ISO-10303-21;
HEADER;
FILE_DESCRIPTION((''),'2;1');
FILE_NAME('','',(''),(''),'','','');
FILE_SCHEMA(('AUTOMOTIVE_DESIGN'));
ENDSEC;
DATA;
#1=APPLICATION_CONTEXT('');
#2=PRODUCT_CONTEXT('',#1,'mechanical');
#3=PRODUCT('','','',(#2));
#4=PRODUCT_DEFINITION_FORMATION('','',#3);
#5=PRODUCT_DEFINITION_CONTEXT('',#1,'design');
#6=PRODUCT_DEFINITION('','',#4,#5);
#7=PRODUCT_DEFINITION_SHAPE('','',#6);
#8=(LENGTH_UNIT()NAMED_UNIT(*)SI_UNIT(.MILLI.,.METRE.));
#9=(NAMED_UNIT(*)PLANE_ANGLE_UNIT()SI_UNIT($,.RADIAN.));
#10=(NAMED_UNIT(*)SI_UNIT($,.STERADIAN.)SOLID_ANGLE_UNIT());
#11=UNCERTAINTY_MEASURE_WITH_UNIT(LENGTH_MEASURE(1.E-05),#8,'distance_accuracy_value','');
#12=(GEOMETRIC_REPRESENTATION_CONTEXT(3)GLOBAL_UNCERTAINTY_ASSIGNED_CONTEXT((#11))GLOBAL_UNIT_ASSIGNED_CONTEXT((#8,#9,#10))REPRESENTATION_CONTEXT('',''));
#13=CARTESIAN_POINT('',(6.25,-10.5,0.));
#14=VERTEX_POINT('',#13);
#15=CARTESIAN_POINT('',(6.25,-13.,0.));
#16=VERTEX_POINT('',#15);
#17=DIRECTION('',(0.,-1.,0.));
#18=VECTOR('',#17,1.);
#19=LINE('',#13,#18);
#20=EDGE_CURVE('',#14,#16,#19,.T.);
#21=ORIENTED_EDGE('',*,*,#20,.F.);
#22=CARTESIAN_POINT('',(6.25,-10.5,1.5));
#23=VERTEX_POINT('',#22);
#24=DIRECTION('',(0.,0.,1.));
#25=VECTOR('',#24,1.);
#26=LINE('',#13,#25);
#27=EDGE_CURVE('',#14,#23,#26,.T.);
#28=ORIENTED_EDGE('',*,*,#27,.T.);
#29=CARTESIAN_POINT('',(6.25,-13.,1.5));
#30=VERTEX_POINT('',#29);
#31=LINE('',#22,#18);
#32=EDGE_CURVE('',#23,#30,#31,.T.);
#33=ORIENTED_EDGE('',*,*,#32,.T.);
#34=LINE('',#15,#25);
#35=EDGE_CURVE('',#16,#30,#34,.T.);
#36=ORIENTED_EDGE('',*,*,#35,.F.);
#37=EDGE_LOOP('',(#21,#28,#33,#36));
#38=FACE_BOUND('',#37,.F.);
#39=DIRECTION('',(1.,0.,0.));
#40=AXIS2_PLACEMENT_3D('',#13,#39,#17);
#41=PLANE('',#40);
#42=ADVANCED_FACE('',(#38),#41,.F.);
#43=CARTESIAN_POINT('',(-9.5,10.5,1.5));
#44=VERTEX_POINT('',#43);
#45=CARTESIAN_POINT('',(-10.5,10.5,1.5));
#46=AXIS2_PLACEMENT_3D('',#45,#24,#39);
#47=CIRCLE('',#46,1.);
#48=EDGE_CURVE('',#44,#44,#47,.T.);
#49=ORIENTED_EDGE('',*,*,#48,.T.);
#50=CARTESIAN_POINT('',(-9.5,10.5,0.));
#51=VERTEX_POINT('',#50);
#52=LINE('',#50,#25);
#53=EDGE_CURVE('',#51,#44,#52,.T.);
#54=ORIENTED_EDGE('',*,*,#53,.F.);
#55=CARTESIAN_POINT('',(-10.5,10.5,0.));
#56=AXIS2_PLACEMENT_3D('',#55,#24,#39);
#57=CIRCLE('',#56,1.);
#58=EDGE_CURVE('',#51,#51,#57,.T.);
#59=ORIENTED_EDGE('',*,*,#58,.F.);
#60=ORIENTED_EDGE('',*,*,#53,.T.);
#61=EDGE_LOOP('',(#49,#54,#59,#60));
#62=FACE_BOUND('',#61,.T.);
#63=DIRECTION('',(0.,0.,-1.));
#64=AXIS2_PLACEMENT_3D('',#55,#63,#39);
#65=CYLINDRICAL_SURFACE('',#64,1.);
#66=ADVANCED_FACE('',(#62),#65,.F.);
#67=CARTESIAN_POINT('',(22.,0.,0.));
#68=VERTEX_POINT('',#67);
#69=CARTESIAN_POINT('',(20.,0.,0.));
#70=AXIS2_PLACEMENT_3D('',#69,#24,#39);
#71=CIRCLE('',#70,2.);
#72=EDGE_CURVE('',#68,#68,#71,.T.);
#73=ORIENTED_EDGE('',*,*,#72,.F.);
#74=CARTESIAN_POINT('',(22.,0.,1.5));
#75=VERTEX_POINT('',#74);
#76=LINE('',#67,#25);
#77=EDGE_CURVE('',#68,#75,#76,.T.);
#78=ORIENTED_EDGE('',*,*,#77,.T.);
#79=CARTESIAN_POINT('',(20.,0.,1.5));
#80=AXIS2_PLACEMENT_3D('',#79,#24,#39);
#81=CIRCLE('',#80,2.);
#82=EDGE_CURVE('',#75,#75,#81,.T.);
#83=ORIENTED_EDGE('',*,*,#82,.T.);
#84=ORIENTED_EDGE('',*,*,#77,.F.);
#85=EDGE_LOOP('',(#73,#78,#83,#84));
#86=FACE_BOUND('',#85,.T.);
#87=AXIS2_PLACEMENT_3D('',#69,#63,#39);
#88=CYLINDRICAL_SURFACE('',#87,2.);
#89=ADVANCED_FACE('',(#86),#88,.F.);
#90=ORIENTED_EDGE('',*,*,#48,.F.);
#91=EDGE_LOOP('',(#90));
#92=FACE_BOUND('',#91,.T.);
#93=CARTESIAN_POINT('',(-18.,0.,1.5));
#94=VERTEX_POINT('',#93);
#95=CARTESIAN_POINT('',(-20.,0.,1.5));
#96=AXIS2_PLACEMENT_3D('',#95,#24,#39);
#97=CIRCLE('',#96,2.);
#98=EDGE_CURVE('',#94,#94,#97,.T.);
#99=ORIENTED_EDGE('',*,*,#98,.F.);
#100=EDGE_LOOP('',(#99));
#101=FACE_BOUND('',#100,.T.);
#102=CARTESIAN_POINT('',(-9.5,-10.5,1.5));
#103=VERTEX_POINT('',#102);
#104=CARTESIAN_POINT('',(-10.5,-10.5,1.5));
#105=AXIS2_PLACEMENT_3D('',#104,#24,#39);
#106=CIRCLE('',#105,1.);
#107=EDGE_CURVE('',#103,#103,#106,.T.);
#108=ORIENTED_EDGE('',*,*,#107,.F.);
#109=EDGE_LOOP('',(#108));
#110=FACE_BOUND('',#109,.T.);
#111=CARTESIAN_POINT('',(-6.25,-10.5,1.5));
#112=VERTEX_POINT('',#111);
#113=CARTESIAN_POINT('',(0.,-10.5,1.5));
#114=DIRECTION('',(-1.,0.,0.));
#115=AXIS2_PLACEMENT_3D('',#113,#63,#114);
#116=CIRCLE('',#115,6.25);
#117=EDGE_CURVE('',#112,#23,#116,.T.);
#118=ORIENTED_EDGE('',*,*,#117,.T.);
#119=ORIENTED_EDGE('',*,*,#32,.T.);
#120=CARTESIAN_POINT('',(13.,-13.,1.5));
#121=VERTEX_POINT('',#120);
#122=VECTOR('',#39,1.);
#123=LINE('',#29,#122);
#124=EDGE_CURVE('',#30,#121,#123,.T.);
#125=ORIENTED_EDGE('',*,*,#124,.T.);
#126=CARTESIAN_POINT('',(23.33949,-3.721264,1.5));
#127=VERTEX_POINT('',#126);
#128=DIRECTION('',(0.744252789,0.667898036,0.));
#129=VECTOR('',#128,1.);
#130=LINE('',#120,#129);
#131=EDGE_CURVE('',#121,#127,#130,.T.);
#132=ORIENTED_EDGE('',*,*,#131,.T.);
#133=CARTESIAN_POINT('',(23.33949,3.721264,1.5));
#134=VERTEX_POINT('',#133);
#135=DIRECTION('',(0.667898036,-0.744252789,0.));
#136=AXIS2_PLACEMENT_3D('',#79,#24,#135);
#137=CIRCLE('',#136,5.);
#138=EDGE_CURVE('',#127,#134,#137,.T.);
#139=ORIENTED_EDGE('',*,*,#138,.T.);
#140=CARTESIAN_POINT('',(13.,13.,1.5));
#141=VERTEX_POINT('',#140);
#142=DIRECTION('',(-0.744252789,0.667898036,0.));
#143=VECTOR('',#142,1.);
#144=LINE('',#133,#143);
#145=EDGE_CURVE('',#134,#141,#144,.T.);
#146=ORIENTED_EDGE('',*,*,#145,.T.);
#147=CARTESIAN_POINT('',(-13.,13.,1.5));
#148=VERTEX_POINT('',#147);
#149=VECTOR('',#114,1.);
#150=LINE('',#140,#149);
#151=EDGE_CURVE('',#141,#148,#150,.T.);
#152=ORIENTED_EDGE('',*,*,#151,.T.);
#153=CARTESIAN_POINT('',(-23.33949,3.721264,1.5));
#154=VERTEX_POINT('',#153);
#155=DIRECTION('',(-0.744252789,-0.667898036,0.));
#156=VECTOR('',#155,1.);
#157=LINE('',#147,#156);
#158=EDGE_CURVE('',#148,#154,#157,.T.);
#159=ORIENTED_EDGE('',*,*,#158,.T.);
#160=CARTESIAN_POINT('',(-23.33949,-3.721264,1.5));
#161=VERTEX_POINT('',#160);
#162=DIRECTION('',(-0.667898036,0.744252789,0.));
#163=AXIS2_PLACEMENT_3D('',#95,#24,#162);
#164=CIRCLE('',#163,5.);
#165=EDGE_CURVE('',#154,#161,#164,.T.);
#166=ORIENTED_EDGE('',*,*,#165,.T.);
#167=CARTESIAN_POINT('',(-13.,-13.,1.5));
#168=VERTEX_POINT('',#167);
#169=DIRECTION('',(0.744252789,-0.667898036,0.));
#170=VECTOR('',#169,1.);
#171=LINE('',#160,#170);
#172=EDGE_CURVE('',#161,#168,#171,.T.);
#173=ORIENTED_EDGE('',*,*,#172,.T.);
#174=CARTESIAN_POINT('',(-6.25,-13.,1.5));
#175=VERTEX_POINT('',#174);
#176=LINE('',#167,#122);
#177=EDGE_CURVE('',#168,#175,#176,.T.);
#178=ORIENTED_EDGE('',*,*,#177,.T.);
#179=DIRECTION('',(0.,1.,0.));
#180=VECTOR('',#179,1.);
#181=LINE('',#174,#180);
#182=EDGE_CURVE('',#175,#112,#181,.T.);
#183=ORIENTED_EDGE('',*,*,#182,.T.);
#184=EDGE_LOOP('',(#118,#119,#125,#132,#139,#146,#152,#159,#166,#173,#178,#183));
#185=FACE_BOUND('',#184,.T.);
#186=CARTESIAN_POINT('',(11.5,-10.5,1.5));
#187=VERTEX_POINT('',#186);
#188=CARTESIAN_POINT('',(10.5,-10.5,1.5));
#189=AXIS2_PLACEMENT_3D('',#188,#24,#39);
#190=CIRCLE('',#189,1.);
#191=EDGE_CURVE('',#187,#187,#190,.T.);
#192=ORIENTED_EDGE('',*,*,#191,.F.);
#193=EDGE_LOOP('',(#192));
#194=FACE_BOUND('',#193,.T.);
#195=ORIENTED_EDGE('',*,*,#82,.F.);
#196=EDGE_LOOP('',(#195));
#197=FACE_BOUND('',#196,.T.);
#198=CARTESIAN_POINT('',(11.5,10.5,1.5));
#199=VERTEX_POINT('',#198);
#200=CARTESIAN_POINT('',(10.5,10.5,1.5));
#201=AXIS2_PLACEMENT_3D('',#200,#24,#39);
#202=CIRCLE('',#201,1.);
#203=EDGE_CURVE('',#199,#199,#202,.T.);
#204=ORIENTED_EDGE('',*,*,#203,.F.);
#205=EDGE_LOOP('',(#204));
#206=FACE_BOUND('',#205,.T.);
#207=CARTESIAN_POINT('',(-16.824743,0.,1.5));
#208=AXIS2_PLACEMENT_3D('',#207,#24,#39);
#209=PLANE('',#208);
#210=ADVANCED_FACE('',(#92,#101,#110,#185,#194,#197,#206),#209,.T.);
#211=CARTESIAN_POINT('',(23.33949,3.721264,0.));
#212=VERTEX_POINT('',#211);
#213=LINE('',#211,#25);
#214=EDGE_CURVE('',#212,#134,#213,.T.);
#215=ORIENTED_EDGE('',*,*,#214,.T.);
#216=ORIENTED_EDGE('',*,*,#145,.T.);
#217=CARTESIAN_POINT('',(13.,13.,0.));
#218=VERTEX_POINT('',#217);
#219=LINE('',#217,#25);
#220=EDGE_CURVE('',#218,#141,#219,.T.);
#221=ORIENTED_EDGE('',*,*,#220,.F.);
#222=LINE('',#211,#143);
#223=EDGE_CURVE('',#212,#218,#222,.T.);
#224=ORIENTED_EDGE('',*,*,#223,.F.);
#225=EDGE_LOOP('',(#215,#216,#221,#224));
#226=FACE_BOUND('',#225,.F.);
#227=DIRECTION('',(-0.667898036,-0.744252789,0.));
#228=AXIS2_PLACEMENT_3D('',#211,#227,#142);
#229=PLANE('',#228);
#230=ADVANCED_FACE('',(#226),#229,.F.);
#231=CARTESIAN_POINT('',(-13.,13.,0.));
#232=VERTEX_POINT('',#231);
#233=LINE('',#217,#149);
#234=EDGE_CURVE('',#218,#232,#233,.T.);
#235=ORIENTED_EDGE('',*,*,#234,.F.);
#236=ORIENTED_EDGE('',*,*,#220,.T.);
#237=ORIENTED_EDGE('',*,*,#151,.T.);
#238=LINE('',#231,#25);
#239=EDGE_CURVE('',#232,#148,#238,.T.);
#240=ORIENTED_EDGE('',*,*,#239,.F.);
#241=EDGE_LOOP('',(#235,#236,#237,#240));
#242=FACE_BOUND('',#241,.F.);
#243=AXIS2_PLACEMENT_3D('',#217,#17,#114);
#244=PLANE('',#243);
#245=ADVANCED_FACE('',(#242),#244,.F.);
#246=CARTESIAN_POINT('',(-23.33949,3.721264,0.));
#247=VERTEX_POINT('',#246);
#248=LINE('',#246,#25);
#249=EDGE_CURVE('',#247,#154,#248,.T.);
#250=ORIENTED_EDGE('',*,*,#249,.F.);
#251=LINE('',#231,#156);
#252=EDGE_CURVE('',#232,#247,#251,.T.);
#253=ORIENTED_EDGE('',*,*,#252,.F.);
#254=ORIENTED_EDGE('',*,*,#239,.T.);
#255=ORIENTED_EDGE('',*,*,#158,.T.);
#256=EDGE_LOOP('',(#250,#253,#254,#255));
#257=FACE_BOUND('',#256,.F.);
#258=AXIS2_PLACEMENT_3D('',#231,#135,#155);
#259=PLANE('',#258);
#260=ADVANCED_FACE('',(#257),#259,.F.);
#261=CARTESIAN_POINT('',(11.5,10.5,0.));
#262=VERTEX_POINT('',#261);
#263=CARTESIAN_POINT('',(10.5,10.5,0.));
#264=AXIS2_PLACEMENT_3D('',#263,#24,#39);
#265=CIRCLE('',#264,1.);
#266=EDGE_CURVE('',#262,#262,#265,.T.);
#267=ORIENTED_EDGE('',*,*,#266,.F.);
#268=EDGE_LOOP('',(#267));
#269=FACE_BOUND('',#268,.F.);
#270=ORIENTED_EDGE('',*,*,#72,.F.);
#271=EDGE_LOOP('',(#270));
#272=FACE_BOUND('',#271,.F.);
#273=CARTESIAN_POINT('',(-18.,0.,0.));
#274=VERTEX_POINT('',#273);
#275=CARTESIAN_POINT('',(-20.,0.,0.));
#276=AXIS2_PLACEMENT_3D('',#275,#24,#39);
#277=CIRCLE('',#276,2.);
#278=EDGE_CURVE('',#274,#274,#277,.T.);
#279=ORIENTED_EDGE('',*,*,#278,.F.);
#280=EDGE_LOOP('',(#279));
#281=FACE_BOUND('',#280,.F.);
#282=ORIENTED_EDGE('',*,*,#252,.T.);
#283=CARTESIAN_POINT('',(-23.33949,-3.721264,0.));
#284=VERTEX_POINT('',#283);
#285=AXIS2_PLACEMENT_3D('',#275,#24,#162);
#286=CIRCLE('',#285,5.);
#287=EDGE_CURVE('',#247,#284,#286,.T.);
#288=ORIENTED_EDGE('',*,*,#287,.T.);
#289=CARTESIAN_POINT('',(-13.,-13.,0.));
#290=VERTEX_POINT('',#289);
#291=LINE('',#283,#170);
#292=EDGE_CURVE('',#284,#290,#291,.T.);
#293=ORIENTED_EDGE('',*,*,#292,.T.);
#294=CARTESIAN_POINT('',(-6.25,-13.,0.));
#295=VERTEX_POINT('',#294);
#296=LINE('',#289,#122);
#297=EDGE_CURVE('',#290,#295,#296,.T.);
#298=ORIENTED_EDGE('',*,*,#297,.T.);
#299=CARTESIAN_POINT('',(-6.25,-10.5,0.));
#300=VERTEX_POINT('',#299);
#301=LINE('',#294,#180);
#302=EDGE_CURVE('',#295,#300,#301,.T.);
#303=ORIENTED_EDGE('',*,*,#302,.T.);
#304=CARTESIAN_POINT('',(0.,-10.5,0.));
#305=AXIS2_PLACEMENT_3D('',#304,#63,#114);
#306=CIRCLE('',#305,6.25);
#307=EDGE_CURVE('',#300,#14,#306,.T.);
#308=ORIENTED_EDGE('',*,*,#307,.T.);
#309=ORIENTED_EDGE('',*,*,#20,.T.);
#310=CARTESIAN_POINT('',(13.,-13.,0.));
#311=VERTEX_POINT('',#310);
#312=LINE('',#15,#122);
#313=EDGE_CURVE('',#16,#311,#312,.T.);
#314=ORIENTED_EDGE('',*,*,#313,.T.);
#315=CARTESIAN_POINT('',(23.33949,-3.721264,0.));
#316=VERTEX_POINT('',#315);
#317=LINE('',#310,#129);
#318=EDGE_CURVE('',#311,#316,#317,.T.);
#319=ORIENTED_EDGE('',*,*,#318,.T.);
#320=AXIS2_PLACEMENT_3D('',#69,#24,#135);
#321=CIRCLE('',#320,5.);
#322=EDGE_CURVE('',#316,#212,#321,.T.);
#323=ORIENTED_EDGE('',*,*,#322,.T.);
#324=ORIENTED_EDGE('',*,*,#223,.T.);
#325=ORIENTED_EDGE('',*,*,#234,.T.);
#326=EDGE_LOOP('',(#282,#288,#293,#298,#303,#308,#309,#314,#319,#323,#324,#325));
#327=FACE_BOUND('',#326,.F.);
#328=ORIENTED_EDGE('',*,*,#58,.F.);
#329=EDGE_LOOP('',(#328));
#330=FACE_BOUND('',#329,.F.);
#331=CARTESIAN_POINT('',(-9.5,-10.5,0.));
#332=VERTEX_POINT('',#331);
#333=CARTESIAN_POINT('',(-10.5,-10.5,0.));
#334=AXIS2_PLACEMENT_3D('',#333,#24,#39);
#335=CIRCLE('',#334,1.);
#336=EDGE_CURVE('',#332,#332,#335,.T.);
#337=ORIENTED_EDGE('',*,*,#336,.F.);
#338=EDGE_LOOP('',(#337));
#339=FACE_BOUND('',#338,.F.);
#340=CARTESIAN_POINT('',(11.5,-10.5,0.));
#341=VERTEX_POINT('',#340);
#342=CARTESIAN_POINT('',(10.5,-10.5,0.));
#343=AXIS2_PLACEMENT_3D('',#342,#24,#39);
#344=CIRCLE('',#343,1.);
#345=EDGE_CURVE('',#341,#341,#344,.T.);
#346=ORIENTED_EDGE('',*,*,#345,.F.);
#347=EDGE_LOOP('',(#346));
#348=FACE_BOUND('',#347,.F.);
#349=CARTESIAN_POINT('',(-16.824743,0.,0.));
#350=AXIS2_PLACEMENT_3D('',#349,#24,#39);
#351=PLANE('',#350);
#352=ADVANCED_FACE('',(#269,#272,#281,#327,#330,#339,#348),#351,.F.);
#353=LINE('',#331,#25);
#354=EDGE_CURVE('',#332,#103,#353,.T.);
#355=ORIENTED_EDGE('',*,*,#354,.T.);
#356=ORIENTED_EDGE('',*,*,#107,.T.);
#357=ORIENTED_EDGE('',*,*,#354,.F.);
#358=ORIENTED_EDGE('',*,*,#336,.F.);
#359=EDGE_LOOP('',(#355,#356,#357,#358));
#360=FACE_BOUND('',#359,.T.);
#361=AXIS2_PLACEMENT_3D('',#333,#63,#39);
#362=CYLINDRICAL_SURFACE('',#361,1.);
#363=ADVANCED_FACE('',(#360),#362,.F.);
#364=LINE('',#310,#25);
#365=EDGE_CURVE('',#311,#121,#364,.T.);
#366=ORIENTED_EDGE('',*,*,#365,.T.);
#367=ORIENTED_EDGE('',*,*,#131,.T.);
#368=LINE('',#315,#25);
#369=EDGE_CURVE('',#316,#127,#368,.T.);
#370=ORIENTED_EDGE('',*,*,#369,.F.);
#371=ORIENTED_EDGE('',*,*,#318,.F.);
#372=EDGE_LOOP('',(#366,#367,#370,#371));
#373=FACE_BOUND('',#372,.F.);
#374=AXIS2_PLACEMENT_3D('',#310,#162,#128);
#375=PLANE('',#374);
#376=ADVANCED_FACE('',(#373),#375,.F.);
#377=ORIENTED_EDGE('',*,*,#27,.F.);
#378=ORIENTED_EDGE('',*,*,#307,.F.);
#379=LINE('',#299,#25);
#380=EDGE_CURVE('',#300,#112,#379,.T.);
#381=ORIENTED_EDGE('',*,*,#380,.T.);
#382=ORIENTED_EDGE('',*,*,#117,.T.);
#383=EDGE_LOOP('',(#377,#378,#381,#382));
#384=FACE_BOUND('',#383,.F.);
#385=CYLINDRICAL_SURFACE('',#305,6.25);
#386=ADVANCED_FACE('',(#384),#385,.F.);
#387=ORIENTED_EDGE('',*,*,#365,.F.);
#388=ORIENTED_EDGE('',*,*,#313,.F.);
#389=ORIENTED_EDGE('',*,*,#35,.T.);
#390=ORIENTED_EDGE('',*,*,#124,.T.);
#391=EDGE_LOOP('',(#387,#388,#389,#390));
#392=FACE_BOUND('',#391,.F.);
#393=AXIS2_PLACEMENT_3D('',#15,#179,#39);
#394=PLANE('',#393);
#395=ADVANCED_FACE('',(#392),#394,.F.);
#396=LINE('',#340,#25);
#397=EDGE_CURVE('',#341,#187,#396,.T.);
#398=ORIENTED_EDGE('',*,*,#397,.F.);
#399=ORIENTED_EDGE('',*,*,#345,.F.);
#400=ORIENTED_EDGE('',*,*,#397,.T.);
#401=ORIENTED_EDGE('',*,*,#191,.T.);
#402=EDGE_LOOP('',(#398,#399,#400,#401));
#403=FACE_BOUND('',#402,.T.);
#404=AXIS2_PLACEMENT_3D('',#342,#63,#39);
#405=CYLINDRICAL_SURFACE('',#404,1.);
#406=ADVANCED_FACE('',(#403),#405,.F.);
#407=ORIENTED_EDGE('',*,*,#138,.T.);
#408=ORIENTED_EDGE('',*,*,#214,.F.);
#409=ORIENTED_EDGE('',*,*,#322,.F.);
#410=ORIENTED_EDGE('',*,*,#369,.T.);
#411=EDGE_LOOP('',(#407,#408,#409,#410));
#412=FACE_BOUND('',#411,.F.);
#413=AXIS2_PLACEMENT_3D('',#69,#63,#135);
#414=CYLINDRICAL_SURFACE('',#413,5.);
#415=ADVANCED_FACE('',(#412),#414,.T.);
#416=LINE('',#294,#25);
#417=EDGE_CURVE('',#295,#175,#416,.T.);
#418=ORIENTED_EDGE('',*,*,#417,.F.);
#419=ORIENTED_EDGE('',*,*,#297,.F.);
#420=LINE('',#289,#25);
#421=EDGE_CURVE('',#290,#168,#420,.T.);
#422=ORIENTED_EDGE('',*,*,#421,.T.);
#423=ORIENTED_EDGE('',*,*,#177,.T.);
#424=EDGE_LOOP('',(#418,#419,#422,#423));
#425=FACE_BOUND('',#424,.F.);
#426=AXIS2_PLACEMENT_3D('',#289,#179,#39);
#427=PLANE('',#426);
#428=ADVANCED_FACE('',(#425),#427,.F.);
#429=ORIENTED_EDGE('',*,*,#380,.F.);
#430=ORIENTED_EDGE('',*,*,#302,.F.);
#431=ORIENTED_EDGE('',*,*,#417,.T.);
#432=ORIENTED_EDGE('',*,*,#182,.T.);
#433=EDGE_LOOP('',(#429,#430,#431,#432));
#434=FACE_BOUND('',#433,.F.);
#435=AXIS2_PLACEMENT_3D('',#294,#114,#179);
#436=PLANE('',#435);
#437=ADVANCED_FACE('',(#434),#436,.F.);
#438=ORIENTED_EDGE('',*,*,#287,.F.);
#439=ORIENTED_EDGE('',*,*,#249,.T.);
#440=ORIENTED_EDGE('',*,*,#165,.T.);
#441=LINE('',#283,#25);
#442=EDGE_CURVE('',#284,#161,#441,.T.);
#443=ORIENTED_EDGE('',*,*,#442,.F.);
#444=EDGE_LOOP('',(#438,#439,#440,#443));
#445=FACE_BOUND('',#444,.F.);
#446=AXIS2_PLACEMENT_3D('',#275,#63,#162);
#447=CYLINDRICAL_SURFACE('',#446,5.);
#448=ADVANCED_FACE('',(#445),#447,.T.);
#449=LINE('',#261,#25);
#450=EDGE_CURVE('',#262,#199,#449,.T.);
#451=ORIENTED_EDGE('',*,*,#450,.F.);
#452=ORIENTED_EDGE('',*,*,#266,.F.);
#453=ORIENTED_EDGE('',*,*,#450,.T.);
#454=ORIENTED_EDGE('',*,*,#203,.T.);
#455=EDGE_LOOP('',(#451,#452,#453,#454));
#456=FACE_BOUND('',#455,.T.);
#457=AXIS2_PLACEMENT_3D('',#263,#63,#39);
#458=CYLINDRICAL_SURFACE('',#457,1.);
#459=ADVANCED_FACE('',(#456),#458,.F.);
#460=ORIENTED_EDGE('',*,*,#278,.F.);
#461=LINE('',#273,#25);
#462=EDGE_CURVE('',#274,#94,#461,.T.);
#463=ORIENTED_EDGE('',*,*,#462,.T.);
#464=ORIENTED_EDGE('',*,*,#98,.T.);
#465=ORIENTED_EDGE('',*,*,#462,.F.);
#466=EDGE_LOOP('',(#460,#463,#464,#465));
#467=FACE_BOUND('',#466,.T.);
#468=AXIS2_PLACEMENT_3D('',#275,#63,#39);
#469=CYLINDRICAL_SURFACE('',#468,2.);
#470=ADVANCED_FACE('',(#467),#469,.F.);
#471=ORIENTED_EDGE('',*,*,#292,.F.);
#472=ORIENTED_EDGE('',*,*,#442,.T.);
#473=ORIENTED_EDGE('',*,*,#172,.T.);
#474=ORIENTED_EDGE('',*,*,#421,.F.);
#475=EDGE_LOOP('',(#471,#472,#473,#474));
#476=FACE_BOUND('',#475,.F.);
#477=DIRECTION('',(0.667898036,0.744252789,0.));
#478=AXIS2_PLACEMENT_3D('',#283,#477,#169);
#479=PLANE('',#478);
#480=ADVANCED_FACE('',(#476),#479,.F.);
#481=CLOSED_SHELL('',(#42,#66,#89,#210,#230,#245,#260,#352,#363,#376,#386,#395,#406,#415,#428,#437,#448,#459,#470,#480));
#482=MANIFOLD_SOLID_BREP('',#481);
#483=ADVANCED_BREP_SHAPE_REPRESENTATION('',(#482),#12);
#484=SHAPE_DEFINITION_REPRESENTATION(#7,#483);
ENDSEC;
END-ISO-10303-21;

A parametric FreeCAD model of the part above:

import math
import FreeCAD as App
import Part
import Sketcher

V = App.Vector

doc = App.newDocument("Part")
body = doc.addObject("PartDesign::Body", "Body")

sketch1 = doc.addObject("Sketcher::SketchObject", "Sketch")
body.addObject(sketch1)
sketch1.AttachmentSupport = (doc.XY_Plane, [""])
sketch1.MapMode = "FlatFace"
sketch1.addGeometry([
    Part.LineSegment(V(-23.3, -3.7, 0), V(-13, -13, 0)),
    Part.LineSegment(V(-13, -13, 0), V(-6.2, -13, 0)),
    Part.LineSegment(V(-6.2, -13, 0), V(-6.2, -10.5, 0)),
    Part.ArcOfCircle(Part.Circle(V(0, -10.5, 0), V(0, 0, 1), 6.2), math.radians(0), math.radians(180)),
    Part.LineSegment(V(6.2, -10.5, 0), V(6.2, -13, 0)),
    Part.LineSegment(V(6.2, -13, 0), V(13, -13, 0)),
    Part.LineSegment(V(13, -13, 0), V(23.3, -3.7, 0)),
    Part.ArcOfCircle(Part.Circle(V(20, 0, 0), V(0, 0, 1), 5), math.radians(-48), math.radians(48)),
    Part.LineSegment(V(23.3, 3.7, 0), V(13, 13, 0)),
    Part.LineSegment(V(13, 13, 0), V(-13, 13, 0)),
    Part.LineSegment(V(-13, 13, 0), V(-23.3, 3.7, 0)),
    Part.ArcOfCircle(Part.Circle(V(-20, 0, 0), V(0, 0, 1), 5), math.radians(132), math.radians(228)),
    Part.Circle(V(-10.5, -10.5, 0), V(0, 0, 1), 1),
    Part.Circle(V(10.5, -10.5, 0), V(0, 0, 1), 1),
    Part.Circle(V(-20, 0, 0), V(0, 0, 1), 2),
    Part.Circle(V(-10.5, 10.5, 0), V(0, 0, 1), 1),
    Part.Circle(V(20, 0, 0), V(0, 0, 1), 2),
    Part.Circle(V(10.5, 10.5, 0), V(0, 0, 1), 1),
], False)
sketch1.addConstraint([
    Sketcher.Constraint("Coincident", 0, 2, 1, 1),
    Sketcher.Constraint("Coincident", 1, 2, 2, 1),
    Sketcher.Constraint("Tangent", 2, 2, 3, 2),
    Sketcher.Constraint("Tangent", 3, 1, 4, 1),
    Sketcher.Constraint("Coincident", 4, 2, 5, 1),
    Sketcher.Constraint("Coincident", 5, 2, 6, 1),
    Sketcher.Constraint("Tangent", 6, 2, 7, 1),
    Sketcher.Constraint("Tangent", 7, 2, 8, 1),
    Sketcher.Constraint("Coincident", 8, 2, 9, 1),
    Sketcher.Constraint("Coincident", 9, 2, 10, 1),
    Sketcher.Constraint("Tangent", 10, 2, 11, 1),
    Sketcher.Constraint("Tangent", 11, 2, 0, 1),
    Sketcher.Constraint("Horizontal", 1),
    Sketcher.Constraint("Vertical", 2),
    Sketcher.Constraint("Vertical", 4),
    Sketcher.Constraint("Horizontal", 5),
    Sketcher.Constraint("Horizontal", 9),
    Sketcher.Constraint("Coincident", 14, 3, 11, 3),
    Sketcher.Constraint("Coincident", 16, 3, 7, 3),
    Sketcher.Constraint("Equal", 7, 11),
    Sketcher.Constraint("Equal", 12, 13),
    Sketcher.Constraint("Equal", 13, 15),
    Sketcher.Constraint("Equal", 14, 16),
    Sketcher.Constraint("Equal", 15, 17),
    Sketcher.Constraint("Symmetric", 7, 3, 11, 3, -1, 1),
    Sketcher.Constraint("Symmetric", 13, 3, 15, 3, -1, 1),
    Sketcher.Constraint("Symmetric", 12, 3, 17, 3, -1, 1),
    Sketcher.Constraint("Symmetric", 0, 2, 8, 2, -1, 1),
    Sketcher.Constraint("Symmetric", 5, 2, 9, 2, -1, 1),
    Sketcher.Constraint("Symmetric", 12, 3, 13, 3, -2),
    Sketcher.Constraint("Symmetric", 7, 2, 10, 2, -2),
    Sketcher.Constraint("PointOnObject", 3, 3, -2),
    Sketcher.Constraint("Horizontal", 3, 3, 12, 3),
    Sketcher.Constraint("Diameter", 12, 2.0),
    Sketcher.Constraint("Diameter", 14, 4.0),
    Sketcher.Constraint("Radius", 7, 5.0),
    Sketcher.Constraint("DistanceX", 9, 2, 9, 1, 26.0),
    Sketcher.Constraint("Radius", 3, 6.25),
    Sketcher.Constraint("DistanceY", 2, 1, 2, 2, 2.5),
    Sketcher.Constraint("DistanceX", -1, 1, 7, 3, 20.0),
    Sketcher.Constraint("DistanceY", 0, 2, -1, 1, 13.0),
    Sketcher.Constraint("DistanceX", 12, 3, 13, 3, 21.0),
])
pad1 = doc.addObject("PartDesign::Pad", "Pad")
body.addObject(pad1)
pad1.Profile = sketch1
pad1.Length = 1.5

doc.recompute()
